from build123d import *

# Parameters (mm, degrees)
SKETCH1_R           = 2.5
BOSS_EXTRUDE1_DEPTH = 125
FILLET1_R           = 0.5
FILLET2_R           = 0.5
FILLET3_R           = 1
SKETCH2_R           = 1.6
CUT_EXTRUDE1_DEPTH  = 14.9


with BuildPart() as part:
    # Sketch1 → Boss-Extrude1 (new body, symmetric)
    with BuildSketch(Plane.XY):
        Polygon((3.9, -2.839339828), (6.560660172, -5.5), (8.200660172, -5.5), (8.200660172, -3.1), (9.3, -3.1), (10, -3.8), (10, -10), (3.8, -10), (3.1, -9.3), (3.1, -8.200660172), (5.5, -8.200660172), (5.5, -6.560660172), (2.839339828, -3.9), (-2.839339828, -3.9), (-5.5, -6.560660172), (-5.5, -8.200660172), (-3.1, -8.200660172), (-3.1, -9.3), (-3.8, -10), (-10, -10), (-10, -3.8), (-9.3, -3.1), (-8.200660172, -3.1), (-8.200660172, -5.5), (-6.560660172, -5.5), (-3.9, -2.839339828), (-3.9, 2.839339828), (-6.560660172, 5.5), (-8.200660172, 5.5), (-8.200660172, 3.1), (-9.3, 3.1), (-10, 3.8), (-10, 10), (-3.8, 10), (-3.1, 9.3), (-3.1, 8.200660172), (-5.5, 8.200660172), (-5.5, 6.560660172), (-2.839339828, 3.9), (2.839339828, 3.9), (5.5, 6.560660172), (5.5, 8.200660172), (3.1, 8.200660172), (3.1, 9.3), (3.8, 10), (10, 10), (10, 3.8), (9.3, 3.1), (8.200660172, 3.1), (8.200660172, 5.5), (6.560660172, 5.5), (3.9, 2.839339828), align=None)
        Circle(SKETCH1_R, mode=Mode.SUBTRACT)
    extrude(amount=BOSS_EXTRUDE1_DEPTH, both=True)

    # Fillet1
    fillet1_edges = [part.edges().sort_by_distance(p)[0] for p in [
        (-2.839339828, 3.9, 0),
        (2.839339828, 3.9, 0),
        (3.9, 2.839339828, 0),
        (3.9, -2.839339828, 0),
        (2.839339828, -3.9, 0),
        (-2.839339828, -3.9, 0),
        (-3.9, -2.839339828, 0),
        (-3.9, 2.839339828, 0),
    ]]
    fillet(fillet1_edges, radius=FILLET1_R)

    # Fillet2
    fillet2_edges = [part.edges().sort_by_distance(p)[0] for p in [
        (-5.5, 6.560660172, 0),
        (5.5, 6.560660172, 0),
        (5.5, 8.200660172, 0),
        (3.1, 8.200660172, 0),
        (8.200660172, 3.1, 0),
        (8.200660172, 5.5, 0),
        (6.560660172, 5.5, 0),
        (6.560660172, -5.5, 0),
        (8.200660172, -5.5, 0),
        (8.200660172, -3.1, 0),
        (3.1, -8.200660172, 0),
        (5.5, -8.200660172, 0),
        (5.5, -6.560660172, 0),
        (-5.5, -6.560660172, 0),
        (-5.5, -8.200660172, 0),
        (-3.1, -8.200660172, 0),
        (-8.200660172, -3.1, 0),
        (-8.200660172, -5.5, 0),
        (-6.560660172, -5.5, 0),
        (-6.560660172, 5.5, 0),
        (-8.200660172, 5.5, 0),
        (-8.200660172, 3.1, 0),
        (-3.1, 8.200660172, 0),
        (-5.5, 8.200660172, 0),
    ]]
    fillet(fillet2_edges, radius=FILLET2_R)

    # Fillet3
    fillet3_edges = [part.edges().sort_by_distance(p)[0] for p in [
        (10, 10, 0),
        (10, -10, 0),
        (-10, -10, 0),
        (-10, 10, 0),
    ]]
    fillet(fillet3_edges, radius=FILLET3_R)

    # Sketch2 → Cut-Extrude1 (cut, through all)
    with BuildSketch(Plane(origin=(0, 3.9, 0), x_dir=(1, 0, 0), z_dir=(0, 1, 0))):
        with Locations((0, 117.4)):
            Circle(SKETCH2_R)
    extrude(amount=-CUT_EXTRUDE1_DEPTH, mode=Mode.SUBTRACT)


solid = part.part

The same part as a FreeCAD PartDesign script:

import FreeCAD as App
import Part
import Sketcher


def edges_at(feature, points):
    """Names of the edges that pass closest to the given points."""
    edges = feature.Shape.Edges
    near = lambda p: min(range(len(edges)), key=lambda i: edges[i].distToShape(Part.Vertex(*p))[0])
    return sorted({f"Edge{near(p) + 1}" for p in points})


def add_polygon(sketch, points):
    """Adds a closed chain of lines whose ends are joined by coincident constraints."""
    first, n = sketch.GeometryCount, len(points)
    for a, b in zip(points, points[1:] + points[:1]):
        sketch.addGeometry(Part.LineSegment(App.Vector(*a, 0), App.Vector(*b, 0)), False)
    for i in range(n):
        sketch.addConstraint(Sketcher.Constraint("Coincident", first + i, 2, first + (i + 1) % n, 1))

doc = App.newDocument("Part")
body = doc.addObject("PartDesign::Body", "Body")

# Sketch on XY plane
sketch1 = doc.addObject("Sketcher::SketchObject", "Sketch")
body.addObject(sketch1)
sketch1.AttachmentSupport = (doc.XY_Plane, [""])
sketch1.MapMode = "FlatFace"
add_polygon(sketch1, [(6.6, -5.5), (3.9, -2.8), (3.9, 2.8), (6.6, 5.5), (8.2, 5.5), (8.2, 3.1), (9.3, 3.1), (10, 3.8), (10, 10), (3.8, 10), (3.1, 9.3), (3.1, 8.2), (5.5, 8.2), (5.5, 6.6), (2.8, 3.9), (-2.8, 3.9), (-5.5, 6.6), (-5.5, 8.2), (-3.1, 8.2), (-3.1, 9.3), (-3.8, 10), (-10, 10), (-10, 3.8), (-9.3, 3.1), (-8.2, 3.1), (-8.2, 5.5), (-6.6, 5.5), (-3.9, 2.8), (-3.9, -2.8), (-6.6, -5.5), (-8.2, -5.5), (-8.2, -3.1), (-9.3, -3.1), (-10, -3.8), (-10, -10), (-3.8, -10), (-3.1, -9.3), (-3.1, -8.2), (-5.5, -8.2), (-5.5, -6.6), (-2.8, -3.9), (2.8, -3.9), (5.5, -6.6), (5.5, -8.2), (3.1, -8.2), (3.1, -9.3), (3.8, -10), (10, -10), (10, -3.8), (9.3, -3.1), (8.2, -3.1), (8.2, -5.5)])  # lines 0-51
sketch1.addGeometry(Part.Circle(App.Vector(0, 0, 0), App.Vector(0, 0, 1), 2.5), False)  # 52
sketch1.addConstraint(Sketcher.Constraint("Vertical", 1))
sketch1.addConstraint(Sketcher.Constraint("Horizontal", 3))
sketch1.addConstraint(Sketcher.Constraint("Vertical", 4))
sketch1.addConstraint(Sketcher.Constraint("Horizontal", 5))
sketch1.addConstraint(Sketcher.Constraint("Vertical", 7))
sketch1.addConstraint(Sketcher.Constraint("Horizontal", 8))
sketch1.addConstraint(Sketcher.Constraint("Vertical", 10))
sketch1.addConstraint(Sketcher.Constraint("Horizontal", 11))
sketch1.addConstraint(Sketcher.Constraint("Vertical", 12))
sketch1.addConstraint(Sketcher.Constraint("Horizontal", 14))
sketch1.addConstraint(Sketcher.Constraint("Vertical", 16))
sketch1.addConstraint(Sketcher.Constraint("Horizontal", 17))
sketch1.addConstraint(Sketcher.Constraint("Vertical", 18))
sketch1.addConstraint(Sketcher.Constraint("Horizontal", 20))
sketch1.addConstraint(Sketcher.Constraint("Vertical", 21))
sketch1.addConstraint(Sketcher.Constraint("Horizontal", 23))
sketch1.addConstraint(Sketcher.Constraint("Vertical", 24))
sketch1.addConstraint(Sketcher.Constraint("Horizontal", 25))
sketch1.addConstraint(Sketcher.Constraint("Vertical", 27))
sketch1.addConstraint(Sketcher.Constraint("Horizontal", 29))
sketch1.addConstraint(Sketcher.Constraint("Vertical", 30))
sketch1.addConstraint(Sketcher.Constraint("Horizontal", 31))
sketch1.addConstraint(Sketcher.Constraint("Vertical", 33))
sketch1.addConstraint(Sketcher.Constraint("Horizontal", 34))
sketch1.addConstraint(Sketcher.Constraint("Vertical", 36))
sketch1.addConstraint(Sketcher.Constraint("Horizontal", 37))
sketch1.addConstraint(Sketcher.Constraint("Vertical", 38))
sketch1.addConstraint(Sketcher.Constraint("Horizontal", 40))
sketch1.addConstraint(Sketcher.Constraint("Vertical", 42))
sketch1.addConstraint(Sketcher.Constraint("Horizontal", 43))
sketch1.addConstraint(Sketcher.Constraint("Vertical", 44))
sketch1.addConstraint(Sketcher.Constraint("Horizontal", 46))
sketch1.addConstraint(Sketcher.Constraint("Vertical", 47))
sketch1.addConstraint(Sketcher.Constraint("Horizontal", 49))
sketch1.addConstraint(Sketcher.Constraint("Vertical", 50))
sketch1.addConstraint(Sketcher.Constraint("Horizontal", 51))
sketch1.addConstraint(Sketcher.Constraint("Coincident", 52, 3, -1, 1))
sketch1.addConstraint(Sketcher.Constraint("Symmetric", 0, 2, 26, 2, -1, 1))
sketch1.addConstraint(Sketcher.Constraint("Symmetric", 2, 2, 28, 2, -1, 1))
sketch1.addConstraint(Sketcher.Constraint("Symmetric", 4, 2, 30, 2, -1, 1))
sketch1.addConstraint(Sketcher.Constraint("Symmetric", 6, 2, 32, 2, -1, 1))
sketch1.addConstraint(Sketcher.Constraint("Symmetric", 8, 2, 34, 2, -1, 1))
sketch1.addConstraint(Sketcher.Constraint("Symmetric", 9, 2, 35, 2, -1, 1))
sketch1.addConstraint(Sketcher.Constraint("Symmetric", 11, 2, 37, 2, -1, 1))
sketch1.addConstraint(Sketcher.Constraint("Symmetric", 13, 2, 39, 2, -1, 1))
sketch1.addConstraint(Sketcher.Constraint("Symmetric", 15, 2, 41, 2, -1, 1))
sketch1.addConstraint(Sketcher.Constraint("Symmetric", 17, 2, 43, 2, -1, 1))
sketch1.addConstraint(Sketcher.Constraint("Symmetric", 19, 2, 45, 2, -1, 1))
sketch1.addConstraint(Sketcher.Constraint("Symmetric", 21, 2, 47, 2, -1, 1))
sketch1.addConstraint(Sketcher.Constraint("Symmetric", 22, 2, 48, 2, -1, 1))
sketch1.addConstraint(Sketcher.Constraint("Symmetric", 24, 2, 50, 2, -1, 1))
sketch1.addConstraint(Sketcher.Constraint("Symmetric", 12, 2, 15, 2, -2))
sketch1.addConstraint(Sketcher.Constraint("Symmetric", 10, 2, 17, 2, -2))
sketch1.addConstraint(Sketcher.Constraint("Symmetric", 8, 2, 19, 2, -2))
sketch1.addConstraint(Sketcher.Constraint("Symmetric", 6, 2, 21, 2, -2))
sketch1.addConstraint(Sketcher.Constraint("Symmetric", 5, 2, 22, 2, -2))
sketch1.addConstraint(Sketcher.Constraint("Symmetric", 3, 2, 24, 2, -2))
sketch1.addConstraint(Sketcher.Constraint("Perpendicular", 0, 2))
sketch1.addConstraint(Sketcher.Constraint("Parallel", 2, 6))
sketch1.addConstraint(Sketcher.Constraint("Parallel", 6, 9))
sketch1.addConstraint(Sketcher.Constraint("Parallel", 9, 13))
sketch1.addConstraint(Sketcher.Constraint("Perpendicular", 13, 15))
sketch1.addConstraint(Sketcher.Constraint("Parallel", 15, 19))
sketch1.addConstraint(Sketcher.Constraint("Parallel", 19, 22))
sketch1.addConstraint(Sketcher.Constraint("Parallel", 22, 26))
sketch1.addConstraint(Sketcher.Constraint("Perpendicular", 26, 28))
sketch1.addConstraint(Sketcher.Constraint("Parallel", 28, 32))
sketch1.addConstraint(Sketcher.Constraint("Parallel", 35, 39))
sketch1.addConstraint(Sketcher.Constraint("Perpendicular", 39, 41))
sketch1.addConstraint(Sketcher.Constraint("Parallel", 41, 45))
sketch1.addConstraint(Sketcher.Constraint("Horizontal", 1, 2, 26, 2))
sketch1.addConstraint(Sketcher.Constraint("Equal", 40, 1))
sketch1.addConstraint(Sketcher.Constraint("Equal", 43, 4))
sketch1.addConstraint(Sketcher.Constraint("Equal", 46, 7))
sketch1.addConstraint(Sketcher.Constraint("Equal", 49, 10))
sketch1.addConstraint(Sketcher.Constraint("Equal", 51, 12))
sketch1.addConstraint(Sketcher.Constraint("Equal", 6, 9))
sketch1.addConstraint(Sketcher.Constraint("Equal", 2, 13))
sketch1.addConstraint(Sketcher.Constraint("Diameter", 52, 5.0))
sketch1.addConstraint(Sketcher.Constraint("DistanceX", 8, 2, 8, 1, 6.2))
sketch1.addConstraint(Sketcher.Constraint("DistanceX", 11, 1, 11, 2, 2.4))
sketch1.addConstraint(Sketcher.Constraint("DistanceX", -1, 1, 6, 2, 10.0))
sketch1.addConstraint(Sketcher.Constraint("DistanceX", 3, 1, 3, 2, 1.64))
sketch1.addConstraint(Sketcher.Constraint("DistanceX", -1, 1, 0, 2, 3.9))
sketch1.addConstraint(Sketcher.Constraint("DistanceY", -1, 1, 2, 2, 5.5))
sketch1.addConstraint(Sketcher.Constraint("DistanceX", 5, 1, 5, 2, 1.09934))
pad1 = doc.addObject("PartDesign::Pad", "Pad")
body.addObject(pad1)
pad1.Profile = sketch1
pad1.Length = 250
pad1.Midplane = True
doc.recompute()

fillet = doc.addObject("PartDesign::Fillet", "Fillet")
body.addObject(fillet)
fillet.Base = (pad1, edges_at(pad1, [
    (-2.839, 3.9, 0),
    (2.839, 3.9, 0),
    (3.9, 2.839, 0),
    (3.9, -2.839, 0),
    (2.839, -3.9, 0),
    (-2.839, -3.9, 0),
    (-3.9, -2.839, 0),
    (-3.9, 2.839, 0),
]))
fillet.Radius = 0.5
doc.recompute()

fillet2 = doc.addObject("PartDesign::Fillet", "Fillet001")
body.addObject(fillet2)
fillet2.Base = (fillet, edges_at(fillet, [
    (-5.5, 6.561, 0),
    (5.5, 6.561, 0),
    (5.5, 8.201, 0),
    (3.1, 8.201, 0),
    (8.201, 3.1, 0),
    (8.201, 5.5, 0),
    (6.561, 5.5, 0),
    (6.561, -5.5, 0),
    (8.201, -5.5, 0),
    (8.201, -3.1, 0),
    (3.1, -8.201, 0),
    (5.5, -8.201, 0),
    (5.5, -6.561, 0),
    (-5.5, -6.561, 0),
    (-5.5, -8.201, 0),
    (-3.1, -8.201, 0),
    (-8.201, -3.1, 0),
    (-8.201, -5.5, 0),
    (-6.561, -5.5, 0),
    (-6.561, 5.5, 0),
    (-8.201, 5.5, 0),
    (-8.201, 3.1, 0),
    (-3.1, 8.201, 0),
    (-5.5, 8.201, 0),
]))
fillet2.Radius = 0.5
doc.recompute()

fillet3 = doc.addObject("PartDesign::Fillet", "Fillet002")
body.addObject(fillet3)
fillet3.Base = (fillet2, edges_at(fillet2, [
    (10, 10, 0),
    (10, -10, 0),
    (-10, -10, 0),
    (-10, 10, 0),
]))
fillet3.Radius = 1

# Sketch on XZ plane
sketch2 = doc.addObject("Sketcher::SketchObject", "Sketch001")
body.addObject(sketch2)
sketch2.AttachmentSupport = (doc.XZ_Plane, [""])
sketch2.MapMode = "FlatFace"
sketch2.AttachmentOffset = App.Placement(App.Vector(0, 0, -3.9), App.Rotation())
sketch2.addGeometry(Part.Circle(App.Vector(0, -117.4, 0), App.Vector(0, 0, 1), 1.6), False)
sketch2.addConstraint(Sketcher.Constraint("PointOnObject", 0, 3, -2))
sketch2.addConstraint(Sketcher.Constraint("Diameter", 0, 3.2))
sketch2.addConstraint(Sketcher.Constraint("DistanceY", 0, 3, -1, 1, 117.4))
pocket1 = doc.addObject("PartDesign::Pocket", "Pocket")
body.addObject(pocket1)
pocket1.Profile = sketch2
pocket1.Type = "ThroughAll"
pocket1.Reversed = True

doc.recompute()
